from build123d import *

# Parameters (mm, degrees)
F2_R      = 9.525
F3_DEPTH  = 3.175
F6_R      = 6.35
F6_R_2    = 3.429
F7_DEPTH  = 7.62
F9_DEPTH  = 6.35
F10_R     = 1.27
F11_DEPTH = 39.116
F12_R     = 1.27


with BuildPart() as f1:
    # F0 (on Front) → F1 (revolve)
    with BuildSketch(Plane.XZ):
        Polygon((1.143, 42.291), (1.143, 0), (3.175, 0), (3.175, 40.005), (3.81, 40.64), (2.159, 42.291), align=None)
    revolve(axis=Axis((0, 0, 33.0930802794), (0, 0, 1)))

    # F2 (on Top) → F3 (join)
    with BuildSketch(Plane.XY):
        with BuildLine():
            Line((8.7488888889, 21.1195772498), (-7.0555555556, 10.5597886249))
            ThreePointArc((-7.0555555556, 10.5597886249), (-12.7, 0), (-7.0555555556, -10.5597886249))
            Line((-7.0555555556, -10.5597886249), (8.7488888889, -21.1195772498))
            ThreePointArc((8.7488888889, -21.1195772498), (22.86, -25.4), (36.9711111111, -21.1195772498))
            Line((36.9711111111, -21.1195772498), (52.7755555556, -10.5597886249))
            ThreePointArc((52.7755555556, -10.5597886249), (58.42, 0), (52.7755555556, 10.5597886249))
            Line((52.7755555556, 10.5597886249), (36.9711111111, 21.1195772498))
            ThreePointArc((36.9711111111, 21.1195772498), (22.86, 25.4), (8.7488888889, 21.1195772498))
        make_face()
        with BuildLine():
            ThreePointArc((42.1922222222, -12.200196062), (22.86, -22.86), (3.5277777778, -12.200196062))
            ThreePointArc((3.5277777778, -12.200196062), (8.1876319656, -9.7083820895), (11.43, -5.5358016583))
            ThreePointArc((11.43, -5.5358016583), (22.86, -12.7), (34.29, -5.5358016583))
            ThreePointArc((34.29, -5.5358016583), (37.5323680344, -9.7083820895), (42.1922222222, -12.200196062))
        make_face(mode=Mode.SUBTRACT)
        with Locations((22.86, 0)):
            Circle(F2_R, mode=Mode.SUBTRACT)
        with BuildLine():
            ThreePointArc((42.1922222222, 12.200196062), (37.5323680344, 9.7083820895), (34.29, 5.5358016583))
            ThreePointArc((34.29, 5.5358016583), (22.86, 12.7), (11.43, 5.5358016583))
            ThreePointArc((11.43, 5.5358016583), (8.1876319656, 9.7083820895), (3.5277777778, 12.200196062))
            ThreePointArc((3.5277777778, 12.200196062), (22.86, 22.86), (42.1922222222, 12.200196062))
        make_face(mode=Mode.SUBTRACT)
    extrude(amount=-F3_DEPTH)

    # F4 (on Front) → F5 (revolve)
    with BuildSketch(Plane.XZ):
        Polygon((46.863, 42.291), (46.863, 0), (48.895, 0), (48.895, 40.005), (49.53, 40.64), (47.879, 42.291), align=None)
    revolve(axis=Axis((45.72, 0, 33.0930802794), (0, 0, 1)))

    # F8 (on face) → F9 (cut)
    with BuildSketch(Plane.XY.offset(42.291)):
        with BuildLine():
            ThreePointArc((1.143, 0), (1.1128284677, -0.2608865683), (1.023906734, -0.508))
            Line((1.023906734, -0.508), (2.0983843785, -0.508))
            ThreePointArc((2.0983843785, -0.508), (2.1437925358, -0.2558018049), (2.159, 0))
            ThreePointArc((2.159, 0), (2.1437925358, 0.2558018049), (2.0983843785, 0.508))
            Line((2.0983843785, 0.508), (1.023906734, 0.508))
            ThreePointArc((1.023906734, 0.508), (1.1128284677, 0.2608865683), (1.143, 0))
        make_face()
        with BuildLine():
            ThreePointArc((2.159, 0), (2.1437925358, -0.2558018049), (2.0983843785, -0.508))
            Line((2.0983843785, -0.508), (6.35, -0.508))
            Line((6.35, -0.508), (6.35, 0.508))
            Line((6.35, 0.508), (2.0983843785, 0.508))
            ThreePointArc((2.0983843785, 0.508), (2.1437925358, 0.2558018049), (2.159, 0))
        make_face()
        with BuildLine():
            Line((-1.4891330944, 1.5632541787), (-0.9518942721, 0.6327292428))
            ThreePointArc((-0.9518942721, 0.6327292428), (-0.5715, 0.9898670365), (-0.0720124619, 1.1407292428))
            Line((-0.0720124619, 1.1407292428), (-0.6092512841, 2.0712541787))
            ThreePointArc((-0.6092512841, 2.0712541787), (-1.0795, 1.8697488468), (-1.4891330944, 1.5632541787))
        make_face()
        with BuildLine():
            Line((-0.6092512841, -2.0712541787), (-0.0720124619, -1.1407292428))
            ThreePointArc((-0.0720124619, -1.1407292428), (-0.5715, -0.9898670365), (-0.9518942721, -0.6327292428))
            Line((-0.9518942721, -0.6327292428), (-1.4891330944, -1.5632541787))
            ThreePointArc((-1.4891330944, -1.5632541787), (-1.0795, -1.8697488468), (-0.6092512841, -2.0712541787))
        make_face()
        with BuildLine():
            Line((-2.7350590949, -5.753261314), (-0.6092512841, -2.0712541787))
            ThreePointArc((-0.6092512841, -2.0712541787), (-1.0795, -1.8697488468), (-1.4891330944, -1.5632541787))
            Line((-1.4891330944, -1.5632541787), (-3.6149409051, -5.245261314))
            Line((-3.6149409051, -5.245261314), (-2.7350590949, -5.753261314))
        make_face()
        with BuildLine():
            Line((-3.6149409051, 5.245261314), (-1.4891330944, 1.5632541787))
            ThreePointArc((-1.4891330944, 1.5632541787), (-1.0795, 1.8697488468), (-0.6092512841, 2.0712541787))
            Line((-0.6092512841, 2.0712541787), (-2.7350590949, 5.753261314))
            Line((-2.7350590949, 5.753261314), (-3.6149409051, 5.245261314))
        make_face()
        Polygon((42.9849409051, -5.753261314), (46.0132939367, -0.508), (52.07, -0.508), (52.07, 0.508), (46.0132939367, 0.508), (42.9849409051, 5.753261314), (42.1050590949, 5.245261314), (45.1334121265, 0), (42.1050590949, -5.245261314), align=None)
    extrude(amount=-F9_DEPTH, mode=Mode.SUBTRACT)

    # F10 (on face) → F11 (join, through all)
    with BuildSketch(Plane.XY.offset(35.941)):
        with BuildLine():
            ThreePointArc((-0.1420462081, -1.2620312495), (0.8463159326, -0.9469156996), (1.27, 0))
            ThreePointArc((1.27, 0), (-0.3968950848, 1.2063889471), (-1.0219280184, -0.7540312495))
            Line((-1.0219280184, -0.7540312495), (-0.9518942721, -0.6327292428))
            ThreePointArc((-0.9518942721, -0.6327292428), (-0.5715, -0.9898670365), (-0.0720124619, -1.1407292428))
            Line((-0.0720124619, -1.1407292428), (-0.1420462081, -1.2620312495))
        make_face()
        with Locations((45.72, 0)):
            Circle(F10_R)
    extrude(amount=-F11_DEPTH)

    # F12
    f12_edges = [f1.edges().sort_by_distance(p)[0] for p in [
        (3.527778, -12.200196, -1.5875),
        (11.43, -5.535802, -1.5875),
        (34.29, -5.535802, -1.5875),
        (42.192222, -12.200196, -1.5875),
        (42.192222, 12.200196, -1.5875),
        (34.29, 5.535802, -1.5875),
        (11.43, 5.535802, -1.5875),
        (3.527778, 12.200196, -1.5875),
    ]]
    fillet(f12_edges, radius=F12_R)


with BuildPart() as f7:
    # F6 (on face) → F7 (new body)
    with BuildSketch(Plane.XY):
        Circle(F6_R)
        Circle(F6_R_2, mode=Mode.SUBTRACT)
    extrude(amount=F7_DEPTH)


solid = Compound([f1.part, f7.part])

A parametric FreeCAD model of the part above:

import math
import FreeCAD as App
import Part
import Sketcher
Q = App.Units.Quantity


def edges_at(feature, points):
    """Names of the edges that pass closest to the given points."""
    edges = feature.Shape.Edges
    near = lambda p: min(range(len(edges)), key=lambda i: edges[i].distToShape(Part.Vertex(*p))[0])
    return sorted({f"Edge{near(p) + 1}" for p in points})


def add_polygon(sketch, points):
    """Adds a closed chain of lines whose ends are joined by coincident constraints."""
    first, n = sketch.GeometryCount, len(points)
    for a, b in zip(points, points[1:] + points[:1]):
        sketch.addGeometry(Part.LineSegment(App.Vector(*a, 0), App.Vector(*b, 0)), False)
    for i in range(n):
        sketch.addConstraint(Sketcher.Constraint("Coincident", first + i, 2, first + (i + 1) % n, 1))

doc = App.newDocument("Part")
body = doc.addObject("PartDesign::Body", "Body")

sketch1 = doc.addObject("Sketcher::SketchObject", "Sketch")
body.addObject(sketch1)
sketch1.AttachmentSupport = (doc.XZ_Plane, [""])
sketch1.MapMode = "FlatFace"
add_polygon(sketch1, [(1.143, 42.291), (1.143, 0), (3.175, 0), (3.175, 40.005), (3.81, 40.64), (2.159, 42.291)])
sketch1.addConstraint([
    Sketcher.Constraint("Vertical", 0),
    Sketcher.Constraint("Horizontal", 1),
    Sketcher.Constraint("Vertical", 2),
    Sketcher.Constraint("Horizontal", 5),
    Sketcher.Constraint("PointOnObject", 0, 2, -1),
    Sketcher.Constraint("Perpendicular", 3, 4),
    Sketcher.Constraint("Angle", 3, Q("45 deg")),
    Sketcher.Constraint("DistanceX", 1, 1, 1, 2, Q("0.08 in")),
    Sketcher.Constraint("DistanceX", 5, 2, 5, 1, Q("0.04 in")),
    Sketcher.Constraint("DistanceY", -1, 1, 3, 2, Q("1.6 in")),
    Sketcher.Constraint("DistanceY", 0, 2, 0, 1, Q("1.665 in")),
    Sketcher.Constraint("DistanceX", -1, 1, 3, 2, Q("0.15 in")),
])
revolution = doc.addObject("PartDesign::Revolution", "Revolution")
body.addObject(revolution)
revolution.Profile = sketch1
revolution.ReferenceAxis = (sketch1, ["V_Axis"])
revolution.Angle = 360

sketch2 = doc.addObject("Sketcher::SketchObject", "Sketch001")
body.addObject(sketch2)
sketch2.AttachmentSupport = (doc.XY_Plane, [""])
sketch2.MapMode = "FlatFace"
sketch2.addGeometry([
    Part.LineSegment(App.Vector(8.748889, 21.119577, 0), App.Vector(-7.055556, 10.559789, 0)),
    Part.ArcOfCircle(Part.Circle(App.Vector(0, 0, 0), App.Vector(0, 0, 1), 12.7), math.radians(123.748989), math.radians(236.251011)),
    Part.LineSegment(App.Vector(-7.055556, -10.559789, 0), App.Vector(8.748889, -21.119577, 0)),
    Part.ArcOfCircle(Part.Circle(App.Vector(22.86, 0, 0), App.Vector(0, 0, 1), 25.4), math.radians(-123.748989), math.radians(-56.251011)),
    Part.LineSegment(App.Vector(36.971111, -21.119577, 0), App.Vector(52.775556, -10.559789, 0)),
    Part.ArcOfCircle(Part.Circle(App.Vector(45.72, 0, 0), App.Vector(0, 0, 1), 12.7), math.radians(-56.251011), math.radians(56.251011)),
    Part.LineSegment(App.Vector(52.775556, 10.559789, 0), App.Vector(36.971111, 21.119577, 0)),
    Part.ArcOfCircle(Part.Circle(App.Vector(22.86, 0, 0), App.Vector(0, 0, 1), 25.4), math.radians(56.251011), math.radians(123.748989)),
    Part.ArcOfCircle(Part.Circle(App.Vector(45.72, 0, 0), App.Vector(0, 0, 1), 12.7), math.radians(-154.158067), math.radians(-106.12762)),
    Part.ArcOfCircle(Part.Circle(App.Vector(22.86, 0, 0), App.Vector(0, 0, 1), 22.86), math.radians(-147.74476), math.radians(-32.25524)),
    Part.ArcOfCircle(Part.Circle(App.Vector(0, 0, 0), App.Vector(0, 0, 1), 12.7), math.radians(-73.87238), math.radians(-25.841933)),
    Part.ArcOfCircle(Part.Circle(App.Vector(22.86, 0, 0), App.Vector(0, 0, 1), 12.7), math.radians(-154.158067), math.radians(-25.841933)),
    Part.Circle(App.Vector(22.86, 0, 0), App.Vector(0, 0, 1), 9.525),
    Part.ArcOfCircle(Part.Circle(App.Vector(22.86, 0, 0), App.Vector(0, 0, 1), 22.86), math.radians(32.25524), math.radians(147.74476)),
    Part.ArcOfCircle(Part.Circle(App.Vector(45.72, 0, 0), App.Vector(0, 0, 1), 12.7), math.radians(106.12762), math.radians(154.158067)),
    Part.ArcOfCircle(Part.Circle(App.Vector(22.86, 0, 0), App.Vector(0, 0, 1), 12.7), math.radians(25.841933), math.radians(154.158067)),
    Part.ArcOfCircle(Part.Circle(App.Vector(0, 0, 0), App.Vector(0, 0, 1), 12.7), math.radians(25.841933), math.radians(73.87238)),
], False)
sketch2.addConstraint([
    Sketcher.Constraint("Tangent", 0, 2, 1, 1),
    Sketcher.Constraint("Tangent", 1, 2, 2, 1),
    Sketcher.Constraint("Tangent", 2, 2, 3, 1),
    Sketcher.Constraint("Tangent", 3, 2, 4, 1),
    Sketcher.Constraint("Tangent", 4, 2, 5, 1),
    Sketcher.Constraint("Tangent", 5, 2, 6, 1),
    Sketcher.Constraint("Tangent", 6, 2, 7, 1),
    Sketcher.Constraint("Tangent", 7, 2, 0, 1),
    Sketcher.Constraint("Coincident", 8, 2, 9, 2),
    Sketcher.Constraint("Coincident", 9, 1, 10, 1),
    Sketcher.Constraint("Coincident", 10, 2, 11, 1),
    Sketcher.Constraint("Coincident", 11, 2, 8, 1),
    Sketcher.Constraint("Coincident", 13, 1, 14, 1),
    Sketcher.Constraint("Coincident", 14, 2, 15, 1),
    Sketcher.Constraint("Coincident", 15, 2, 16, 1),
    Sketcher.Constraint("Coincident", 16, 2, 13, 2),
    Sketcher.Constraint("Coincident", 1, 3, -1, 1),
    Sketcher.Constraint("Coincident", 10, 3, -1, 1),
    Sketcher.Constraint("Coincident", 16, 3, -1, 1),
    Sketcher.Constraint("Coincident", 7, 3, 3, 3),
    Sketcher.Constraint("Coincident", 8, 3, 5, 3),
    Sketcher.Constraint("Coincident", 9, 3, 3, 3),
    Sketcher.Constraint("Coincident", 11, 3, 3, 3),
    Sketcher.Constraint("Coincident", 12, 3, 3, 3),
    Sketcher.Constraint("Coincident", 13, 3, 3, 3),
    Sketcher.Constraint("Coincident", 14, 3, 5, 3),
    Sketcher.Constraint("Coincident", 15, 3, 3, 3),
    Sketcher.Constraint("Equal", 1, 5),
    Sketcher.Constraint("Equal", 3, 7),
    Sketcher.Constraint("Equal", 5, 8),
    Sketcher.Constraint("Equal", 8, 10),
    Sketcher.Constraint("Equal", 10, 11),
    Sketcher.Constraint("Equal", 9, 13),
    Sketcher.Constraint("Equal", 11, 14),
    Sketcher.Constraint("Equal", 14, 15),
    Sketcher.Constraint("Equal", 15, 16),
    Sketcher.Constraint("Symmetric", 4, 2, 5, 2, -1),
    Sketcher.Constraint("Parallel", 0, 4),
    Sketcher.Constraint("Radius", 3, Q("1 in")),
    Sketcher.Constraint("Radius", 1, Q("0.5 in")),
    Sketcher.Constraint("Radius", 9, Q("0.9 in")),
    Sketcher.Constraint("Diameter", 12, Q("0.75 in")),
    Sketcher.Constraint("DistanceX", -1, 1, 3, 3, Q("0.9 in")),
])
pad1 = doc.addObject("PartDesign::Pad", "Pad")
body.addObject(pad1)
pad1.Profile = sketch2
pad1.Length = Q("0.125 in")
pad1.Reversed = True

sketch3 = doc.addObject("Sketcher::SketchObject", "Sketch002")
body.addObject(sketch3)
sketch3.AttachmentSupport = (doc.XZ_Plane, [""])
sketch3.MapMode = "FlatFace"
add_polygon(sketch3, [(46.863, 42.291), (46.863, 0), (48.895, 0), (48.895, 40.005), (49.53, 40.64), (47.879, 42.291)])
sketch3.addGeometry(Part.LineSegment(App.Vector(45.72, 0, 0), App.Vector(45.72, 42.291, 0)), True)
sketch3.addConstraint([
    Sketcher.Constraint("Vertical", 0),
    Sketcher.Constraint("Horizontal", 1),
    Sketcher.Constraint("Vertical", 2),
    Sketcher.Constraint("Horizontal", 5),
    Sketcher.Constraint("Vertical", 6),
    Sketcher.Constraint("PointOnObject", 0, 2, -1),
    Sketcher.Constraint("PointOnObject", 6, 1, -1),
    Sketcher.Constraint("Perpendicular", 3, 4),
    Sketcher.Constraint("Horizontal", 5, 2, 6, 2),
    Sketcher.Constraint("Angle", 3, Q("45 deg")),
    Sketcher.Constraint("DistanceX", 1, 1, 1, 2, Q("0.08 in")),
    Sketcher.Constraint("DistanceX", 5, 2, 5, 1, Q("0.04 in")),
    Sketcher.Constraint("DistanceY", -1, 1, 3, 2, Q("1.6 in")),
    Sketcher.Constraint("DistanceX", -1, 1, 6, 1, Q("1.8 in")),
    Sketcher.Constraint("DistanceY", 0, 2, 0, 1, Q("1.665 in")),
    Sketcher.Constraint("DistanceX", -1, 1, 3, 2, Q("1.95 in")),
])
revolution2 = doc.addObject("PartDesign::Revolution", "Revolution001")
body.addObject(revolution2)
revolution2.Profile = sketch3
revolution2.ReferenceAxis = (sketch3, ["Axis0"])
revolution2.Angle = 360

sketch4 = doc.addObject("Sketcher::SketchObject", "Sketch003")
body.addObject(sketch4)
sketch4.AttachmentSupport = (doc.XY_Plane, [""])
sketch4.MapMode = "FlatFace"
sketch4.AttachmentOffset = App.Placement(App.Vector(0, 0, 1.665 * 25.4), App.Rotation())
sketch4.addGeometry(Part.ArcOfCircle(Part.Circle(App.Vector(0, 0, 0), App.Vector(0, 0, 1), 1.143), math.radians(-26.3878), math.radians(0)), False)
sketch4.addGeometry(Part.LineSegment(App.Vector(1.023907, -0.508, 0), App.Vector(6.35, -0.508, 0)), False)
sketch4.addGeometry(Part.LineSegment(App.Vector(6.35, -0.508, 0), App.Vector(6.35, 0.508, 0)), False)
sketch4.addGeometry(Part.LineSegment(App.Vector(6.35, 0.508, 0), App.Vector(1.023907, 0.508, 0)), False)
sketch4.addGeometry(Part.ArcOfCircle(Part.Circle(App.Vector(0, 0, 0), App.Vector(0, 0, 1), 1.143), math.radians(0), math.radians(26.3878)), False)
sketch4.addGeometry(Part.LineSegment(App.Vector(-1.489133, 1.563254, 0), App.Vector(-0.951894, 0.632729, 0)), False)
sketch4.addGeometry(Part.ArcOfCircle(Part.Circle(App.Vector(0, 0, 0), App.Vector(0, 0, 1), 1.143), math.radians(93.6122), math.radians(146.3878)), False)
sketch4.addGeometry(Part.LineSegment(App.Vector(-0.072012, 1.140729, 0), App.Vector(-0.609251, 2.071254, 0)), False)
sketch4.addGeometry(Part.LineSegment(App.Vector(-0.609251, 2.071254, 0), App.Vector(-2.735059, 5.753261, 0)), False)
sketch4.addGeometry(Part.LineSegment(App.Vector(-2.735059, 5.753261, 0), App.Vector(-3.614941, 5.245261, 0)), False)
sketch4.addGeometry(Part.LineSegment(App.Vector(-3.614941, 5.245261, 0), App.Vector(-1.489133, 1.563254, 0)), False)
sketch4.addGeometry(Part.LineSegment(App.Vector(-0.609251, -2.071254, 0), App.Vector(-0.072012, -1.140729, 0)), False)
sketch4.addGeometry(Part.ArcOfCircle(Part.Circle(App.Vector(0, 0, 0), App.Vector(0, 0, 1), 1.143), math.radians(-146.3878), math.radians(-93.6122)), False)
sketch4.addGeometry(Part.LineSegment(App.Vector(-0.951894, -0.632729, 0), App.Vector(-1.489133, -1.563254, 0)), False)
sketch4.addGeometry(Part.LineSegment(App.Vector(-1.489133, -1.563254, 0), App.Vector(-3.614941, -5.245261, 0)), False)
sketch4.addGeometry(Part.LineSegment(App.Vector(-3.614941, -5.245261, 0), App.Vector(-2.735059, -5.753261, 0)), False)
sketch4.addGeometry(Part.LineSegment(App.Vector(-2.735059, -5.753261, 0), App.Vector(-0.609251, -2.071254, 0)), False)
add_polygon(sketch4, [(42.984941, -5.753261), (46.013294, -0.508), (52.07, -0.508), (52.07, 0.508), (46.013294, 0.508), (42.984941, 5.753261), (42.105059, 5.245261), (45.133412, 0), (42.105059, -5.245261)])
sketch4.addConstraint([
    Sketcher.Constraint("Coincident", 0, 1, 1, 1),
    Sketcher.Constraint("Coincident", 1, 2, 2, 1),
    Sketcher.Constraint("Coincident", 2, 2, 3, 1),
    Sketcher.Constraint("Coincident", 3, 2, 4, 2),
    Sketcher.Constraint("Tangent", 4, 1, 0, 2),
    Sketcher.Constraint("Coincident", 5, 2, 6, 2),
    Sketcher.Constraint("Coincident", 6, 1, 7, 1),
    Sketcher.Constraint("Coincident", 7, 2, 8, 1),
    Sketcher.Constraint("Coincident", 8, 2, 9, 1),
    Sketcher.Constraint("Coincident", 9, 2, 10, 1),
    Sketcher.Constraint("Coincident", 10, 2, 5, 1),
    Sketcher.Constraint("Coincident", 11, 2, 12, 2),
    Sketcher.Constraint("Coincident", 12, 1, 13, 1),
    Sketcher.Constraint("Coincident", 13, 2, 14, 1),
    Sketcher.Constraint("Coincident", 14, 2, 15, 1),
    Sketcher.Constraint("Coincident", 15, 2, 16, 1),
    Sketcher.Constraint("Coincident", 16, 2, 11, 1),
    Sketcher.Constraint("Horizontal", 1),
    Sketcher.Constraint("Vertical", 2),
    Sketcher.Constraint("Horizontal", 3),
    Sketcher.Constraint("Horizontal", 18),
    Sketcher.Constraint("Vertical", 19),
    Sketcher.Constraint("Horizontal", 20),
    Sketcher.Constraint("Coincident", 0, 3, -1, 1),
    Sketcher.Constraint("Coincident", 6, 3, -1, 1),
    Sketcher.Constraint("Coincident", 12, 3, -1, 1),
    Sketcher.Constraint("Equal", 0, 4),
    Sketcher.Constraint("Equal", 4, 6),
    Sketcher.Constraint("Equal", 6, 12),
    Sketcher.Constraint("Symmetric", 10, 2, 13, 2, -1),
    Sketcher.Constraint("Symmetric", 9, 2, 14, 2, -1),
    Sketcher.Constraint("Symmetric", 8, 2, 15, 2, -1),
    Sketcher.Constraint("Symmetric", 7, 2, 16, 2, -1),
    Sketcher.Constraint("Symmetric", 17, 2, 20, 2, -1),
    Sketcher.Constraint("Symmetric", 22, 2, 24, 2, -1),
    Sketcher.Constraint("Symmetric", 21, 2, 25, 2, -1),
    Sketcher.Constraint("PointOnObject", 4, 1, -1),
    Sketcher.Constraint("PointOnObject", 23, 2, -1),
    Sketcher.Constraint("Parallel", 5, 7),
    Sketcher.Constraint("Parallel", 7, 8),
    Sketcher.Constraint("Perpendicular", 8, 9),
    Sketcher.Constraint("Perpendicular", 9, 10),
    Sketcher.Constraint("Parallel", 11, 13),
    Sketcher.Constraint("Parallel", 13, 14),
    Sketcher.Constraint("Parallel", 16, 17),
    Sketcher.Constraint("Perpendicular", 21, 22),
    Sketcher.Constraint("Perpendicular", 22, 23),
    Sketcher.Constraint("Horizontal", 1, 2, 17, 2),
    Sketcher.Constraint("Horizontal", 3, 2, 19, 2),
    Sketcher.Constraint("Horizontal", 8, 2, 21, 2),
    Sketcher.Constraint("Horizontal", 9, 2, 22, 2),
    Sketcher.Constraint("Equal", 5, 7),
    Sketcher.Constraint("Equal", 8, 10),
    Sketcher.Constraint("Equal", 21, 23),
    Sketcher.Constraint("Angle", 5, Q("-60 deg")),
    Sketcher.Constraint("Radius", 0, Q("0.045 in")),
    Sketcher.Constraint("DistanceY", 2, 1, 2, 2, Q("0.04 in")),
    Sketcher.Constraint("DistanceX", 1, 2, 18, 2, Q("1.8 in")),
    Sketcher.Constraint("DistanceX", -1, 1, 1, 2, Q("0.25 in")),
    Sketcher.Constraint("DistanceX", 18, 1, 18, 2, 6.056706),
    Sketcher.Constraint("DistanceX", 7, 2, -1, 1, 0.609251),
    Sketcher.Constraint("DistanceX", 8, 2, -1, 1, 2.735059),
])
pocket1 = doc.addObject("PartDesign::Pocket", "Pocket")
body.addObject(pocket1)
pocket1.Profile = sketch4
pocket1.Length = Q("0.25 in")

sketch5 = doc.addObject("Sketcher::SketchObject", "Sketch004")
body.addObject(sketch5)
sketch5.AttachmentSupport = (doc.XY_Plane, [""])
sketch5.MapMode = "FlatFace"
sketch5.AttachmentOffset = App.Placement(App.Vector(0, 0, 1.415 * 25.4), App.Rotation())
sketch5.addGeometry([
    Part.ArcOfCircle(Part.Circle(App.Vector(0, 0, 0), App.Vector(0, 0, 1), 1.27), math.radians(-96.421822), math.radians(0)),
    Part.ArcOfCircle(Part.Circle(App.Vector(0, 0, 0), App.Vector(0, 0, 1), 1.27), math.radians(0), math.radians(216.421822)),
    Part.LineSegment(App.Vector(-1.021928, -0.754031, 0), App.Vector(-0.951894, -0.632729, 0)),
    Part.ArcOfCircle(Part.Circle(App.Vector(0, 0, 0), App.Vector(0, 0, 1), 1.143), math.radians(-146.3878), math.radians(-93.6122)),
    Part.LineSegment(App.Vector(-0.072012, -1.140729, 0), App.Vector(-0.142046, -1.262031, 0)),
    Part.Circle(App.Vector(45.72, 0, 0), App.Vector(0, 0, 1), 1.27),
], False)
sketch5.addConstraint([
    Sketcher.Constraint("Tangent", 0, 2, 1, 1),
    Sketcher.Constraint("Coincident", 1, 2, 2, 1),
    Sketcher.Constraint("Coincident", 2, 2, 3, 1),
    Sketcher.Constraint("Coincident", 3, 2, 4, 1),
    Sketcher.Constraint("Coincident", 4, 2, 0, 1),
    Sketcher.Constraint("Coincident", 0, 3, -1, 1),
    Sketcher.Constraint("Coincident", 3, 3, -1, 1),
    Sketcher.Constraint("Equal", 0, 1),
    Sketcher.Constraint("Equal", 1, 5),
    Sketcher.Constraint("PointOnObject", 5, 3, -1),
    Sketcher.Constraint("PointOnObject", 0, 2, -1),
    Sketcher.Constraint("Parallel", 2, 4),
    Sketcher.Constraint("Equal", 2, 4),
    Sketcher.Constraint("Diameter", 5, Q("0.1 in")),
    Sketcher.Constraint("Angle", 2, Q("60 deg")),
    Sketcher.Constraint("Radius", 3, Q("0.045 in")),
    Sketcher.Constraint("DistanceX", -1, 1, 5, 3, Q("1.8 in")),
    Sketcher.Constraint("DistanceY", 3, 2, 2, 2, Q("0.02 in")),
])
pad2 = doc.addObject("PartDesign::Pad", "Pad001")
body.addObject(pad2)
pad2.Profile = sketch5
pad2.Length = Q("1.54 in")
pad2.Reversed = True
doc.recompute()

fillet = doc.addObject("PartDesign::Fillet", "Fillet")
body.addObject(fillet)
fillet.Base = (pad2, edges_at(pad2, [
    (3.528, -12.2, -1.587),
    (11.43, -5.536, -1.587),
    (34.29, -5.536, -1.587),
    (42.192, -12.2, -1.587),
    (42.192, 12.2, -1.587),
    (34.29, 5.536, -1.587),
    (11.43, 5.536, -1.587),
    (3.528, 12.2, -1.587),
]))
fillet.Radius = Q("0.05 in")
body2 = doc.addObject("PartDesign::Body", "Body001")

sketch6 = doc.addObject("Sketcher::SketchObject", "Sketch005")
body2.addObject(sketch6)
sketch6.AttachmentSupport = (doc.getObject("XY_Plane001"), [""])
sketch6.MapMode = "FlatFace"
sketch6.addGeometry([
    Part.Circle(App.Vector(0, 0, 0), App.Vector(0, 0, 1), 6.35),
    Part.Circle(App.Vector(0, 0, 0), App.Vector(0, 0, 1), 3.429),
], False)
sketch6.addConstraint([
    Sketcher.Constraint("Coincident", 0, 3, -1, 1),
    Sketcher.Constraint("Coincident", 1, 3, -1, 1),
    Sketcher.Constraint("Diameter", 0, Q("0.5 in")),
    Sketcher.Constraint("Diameter", 1, Q("0.27 in")),
])
pad3 = doc.addObject("PartDesign::Pad", "Pad002")
body2.addObject(pad3)
pad3.Profile = sketch6
pad3.Length = Q("0.3 in")

doc.recompute()
